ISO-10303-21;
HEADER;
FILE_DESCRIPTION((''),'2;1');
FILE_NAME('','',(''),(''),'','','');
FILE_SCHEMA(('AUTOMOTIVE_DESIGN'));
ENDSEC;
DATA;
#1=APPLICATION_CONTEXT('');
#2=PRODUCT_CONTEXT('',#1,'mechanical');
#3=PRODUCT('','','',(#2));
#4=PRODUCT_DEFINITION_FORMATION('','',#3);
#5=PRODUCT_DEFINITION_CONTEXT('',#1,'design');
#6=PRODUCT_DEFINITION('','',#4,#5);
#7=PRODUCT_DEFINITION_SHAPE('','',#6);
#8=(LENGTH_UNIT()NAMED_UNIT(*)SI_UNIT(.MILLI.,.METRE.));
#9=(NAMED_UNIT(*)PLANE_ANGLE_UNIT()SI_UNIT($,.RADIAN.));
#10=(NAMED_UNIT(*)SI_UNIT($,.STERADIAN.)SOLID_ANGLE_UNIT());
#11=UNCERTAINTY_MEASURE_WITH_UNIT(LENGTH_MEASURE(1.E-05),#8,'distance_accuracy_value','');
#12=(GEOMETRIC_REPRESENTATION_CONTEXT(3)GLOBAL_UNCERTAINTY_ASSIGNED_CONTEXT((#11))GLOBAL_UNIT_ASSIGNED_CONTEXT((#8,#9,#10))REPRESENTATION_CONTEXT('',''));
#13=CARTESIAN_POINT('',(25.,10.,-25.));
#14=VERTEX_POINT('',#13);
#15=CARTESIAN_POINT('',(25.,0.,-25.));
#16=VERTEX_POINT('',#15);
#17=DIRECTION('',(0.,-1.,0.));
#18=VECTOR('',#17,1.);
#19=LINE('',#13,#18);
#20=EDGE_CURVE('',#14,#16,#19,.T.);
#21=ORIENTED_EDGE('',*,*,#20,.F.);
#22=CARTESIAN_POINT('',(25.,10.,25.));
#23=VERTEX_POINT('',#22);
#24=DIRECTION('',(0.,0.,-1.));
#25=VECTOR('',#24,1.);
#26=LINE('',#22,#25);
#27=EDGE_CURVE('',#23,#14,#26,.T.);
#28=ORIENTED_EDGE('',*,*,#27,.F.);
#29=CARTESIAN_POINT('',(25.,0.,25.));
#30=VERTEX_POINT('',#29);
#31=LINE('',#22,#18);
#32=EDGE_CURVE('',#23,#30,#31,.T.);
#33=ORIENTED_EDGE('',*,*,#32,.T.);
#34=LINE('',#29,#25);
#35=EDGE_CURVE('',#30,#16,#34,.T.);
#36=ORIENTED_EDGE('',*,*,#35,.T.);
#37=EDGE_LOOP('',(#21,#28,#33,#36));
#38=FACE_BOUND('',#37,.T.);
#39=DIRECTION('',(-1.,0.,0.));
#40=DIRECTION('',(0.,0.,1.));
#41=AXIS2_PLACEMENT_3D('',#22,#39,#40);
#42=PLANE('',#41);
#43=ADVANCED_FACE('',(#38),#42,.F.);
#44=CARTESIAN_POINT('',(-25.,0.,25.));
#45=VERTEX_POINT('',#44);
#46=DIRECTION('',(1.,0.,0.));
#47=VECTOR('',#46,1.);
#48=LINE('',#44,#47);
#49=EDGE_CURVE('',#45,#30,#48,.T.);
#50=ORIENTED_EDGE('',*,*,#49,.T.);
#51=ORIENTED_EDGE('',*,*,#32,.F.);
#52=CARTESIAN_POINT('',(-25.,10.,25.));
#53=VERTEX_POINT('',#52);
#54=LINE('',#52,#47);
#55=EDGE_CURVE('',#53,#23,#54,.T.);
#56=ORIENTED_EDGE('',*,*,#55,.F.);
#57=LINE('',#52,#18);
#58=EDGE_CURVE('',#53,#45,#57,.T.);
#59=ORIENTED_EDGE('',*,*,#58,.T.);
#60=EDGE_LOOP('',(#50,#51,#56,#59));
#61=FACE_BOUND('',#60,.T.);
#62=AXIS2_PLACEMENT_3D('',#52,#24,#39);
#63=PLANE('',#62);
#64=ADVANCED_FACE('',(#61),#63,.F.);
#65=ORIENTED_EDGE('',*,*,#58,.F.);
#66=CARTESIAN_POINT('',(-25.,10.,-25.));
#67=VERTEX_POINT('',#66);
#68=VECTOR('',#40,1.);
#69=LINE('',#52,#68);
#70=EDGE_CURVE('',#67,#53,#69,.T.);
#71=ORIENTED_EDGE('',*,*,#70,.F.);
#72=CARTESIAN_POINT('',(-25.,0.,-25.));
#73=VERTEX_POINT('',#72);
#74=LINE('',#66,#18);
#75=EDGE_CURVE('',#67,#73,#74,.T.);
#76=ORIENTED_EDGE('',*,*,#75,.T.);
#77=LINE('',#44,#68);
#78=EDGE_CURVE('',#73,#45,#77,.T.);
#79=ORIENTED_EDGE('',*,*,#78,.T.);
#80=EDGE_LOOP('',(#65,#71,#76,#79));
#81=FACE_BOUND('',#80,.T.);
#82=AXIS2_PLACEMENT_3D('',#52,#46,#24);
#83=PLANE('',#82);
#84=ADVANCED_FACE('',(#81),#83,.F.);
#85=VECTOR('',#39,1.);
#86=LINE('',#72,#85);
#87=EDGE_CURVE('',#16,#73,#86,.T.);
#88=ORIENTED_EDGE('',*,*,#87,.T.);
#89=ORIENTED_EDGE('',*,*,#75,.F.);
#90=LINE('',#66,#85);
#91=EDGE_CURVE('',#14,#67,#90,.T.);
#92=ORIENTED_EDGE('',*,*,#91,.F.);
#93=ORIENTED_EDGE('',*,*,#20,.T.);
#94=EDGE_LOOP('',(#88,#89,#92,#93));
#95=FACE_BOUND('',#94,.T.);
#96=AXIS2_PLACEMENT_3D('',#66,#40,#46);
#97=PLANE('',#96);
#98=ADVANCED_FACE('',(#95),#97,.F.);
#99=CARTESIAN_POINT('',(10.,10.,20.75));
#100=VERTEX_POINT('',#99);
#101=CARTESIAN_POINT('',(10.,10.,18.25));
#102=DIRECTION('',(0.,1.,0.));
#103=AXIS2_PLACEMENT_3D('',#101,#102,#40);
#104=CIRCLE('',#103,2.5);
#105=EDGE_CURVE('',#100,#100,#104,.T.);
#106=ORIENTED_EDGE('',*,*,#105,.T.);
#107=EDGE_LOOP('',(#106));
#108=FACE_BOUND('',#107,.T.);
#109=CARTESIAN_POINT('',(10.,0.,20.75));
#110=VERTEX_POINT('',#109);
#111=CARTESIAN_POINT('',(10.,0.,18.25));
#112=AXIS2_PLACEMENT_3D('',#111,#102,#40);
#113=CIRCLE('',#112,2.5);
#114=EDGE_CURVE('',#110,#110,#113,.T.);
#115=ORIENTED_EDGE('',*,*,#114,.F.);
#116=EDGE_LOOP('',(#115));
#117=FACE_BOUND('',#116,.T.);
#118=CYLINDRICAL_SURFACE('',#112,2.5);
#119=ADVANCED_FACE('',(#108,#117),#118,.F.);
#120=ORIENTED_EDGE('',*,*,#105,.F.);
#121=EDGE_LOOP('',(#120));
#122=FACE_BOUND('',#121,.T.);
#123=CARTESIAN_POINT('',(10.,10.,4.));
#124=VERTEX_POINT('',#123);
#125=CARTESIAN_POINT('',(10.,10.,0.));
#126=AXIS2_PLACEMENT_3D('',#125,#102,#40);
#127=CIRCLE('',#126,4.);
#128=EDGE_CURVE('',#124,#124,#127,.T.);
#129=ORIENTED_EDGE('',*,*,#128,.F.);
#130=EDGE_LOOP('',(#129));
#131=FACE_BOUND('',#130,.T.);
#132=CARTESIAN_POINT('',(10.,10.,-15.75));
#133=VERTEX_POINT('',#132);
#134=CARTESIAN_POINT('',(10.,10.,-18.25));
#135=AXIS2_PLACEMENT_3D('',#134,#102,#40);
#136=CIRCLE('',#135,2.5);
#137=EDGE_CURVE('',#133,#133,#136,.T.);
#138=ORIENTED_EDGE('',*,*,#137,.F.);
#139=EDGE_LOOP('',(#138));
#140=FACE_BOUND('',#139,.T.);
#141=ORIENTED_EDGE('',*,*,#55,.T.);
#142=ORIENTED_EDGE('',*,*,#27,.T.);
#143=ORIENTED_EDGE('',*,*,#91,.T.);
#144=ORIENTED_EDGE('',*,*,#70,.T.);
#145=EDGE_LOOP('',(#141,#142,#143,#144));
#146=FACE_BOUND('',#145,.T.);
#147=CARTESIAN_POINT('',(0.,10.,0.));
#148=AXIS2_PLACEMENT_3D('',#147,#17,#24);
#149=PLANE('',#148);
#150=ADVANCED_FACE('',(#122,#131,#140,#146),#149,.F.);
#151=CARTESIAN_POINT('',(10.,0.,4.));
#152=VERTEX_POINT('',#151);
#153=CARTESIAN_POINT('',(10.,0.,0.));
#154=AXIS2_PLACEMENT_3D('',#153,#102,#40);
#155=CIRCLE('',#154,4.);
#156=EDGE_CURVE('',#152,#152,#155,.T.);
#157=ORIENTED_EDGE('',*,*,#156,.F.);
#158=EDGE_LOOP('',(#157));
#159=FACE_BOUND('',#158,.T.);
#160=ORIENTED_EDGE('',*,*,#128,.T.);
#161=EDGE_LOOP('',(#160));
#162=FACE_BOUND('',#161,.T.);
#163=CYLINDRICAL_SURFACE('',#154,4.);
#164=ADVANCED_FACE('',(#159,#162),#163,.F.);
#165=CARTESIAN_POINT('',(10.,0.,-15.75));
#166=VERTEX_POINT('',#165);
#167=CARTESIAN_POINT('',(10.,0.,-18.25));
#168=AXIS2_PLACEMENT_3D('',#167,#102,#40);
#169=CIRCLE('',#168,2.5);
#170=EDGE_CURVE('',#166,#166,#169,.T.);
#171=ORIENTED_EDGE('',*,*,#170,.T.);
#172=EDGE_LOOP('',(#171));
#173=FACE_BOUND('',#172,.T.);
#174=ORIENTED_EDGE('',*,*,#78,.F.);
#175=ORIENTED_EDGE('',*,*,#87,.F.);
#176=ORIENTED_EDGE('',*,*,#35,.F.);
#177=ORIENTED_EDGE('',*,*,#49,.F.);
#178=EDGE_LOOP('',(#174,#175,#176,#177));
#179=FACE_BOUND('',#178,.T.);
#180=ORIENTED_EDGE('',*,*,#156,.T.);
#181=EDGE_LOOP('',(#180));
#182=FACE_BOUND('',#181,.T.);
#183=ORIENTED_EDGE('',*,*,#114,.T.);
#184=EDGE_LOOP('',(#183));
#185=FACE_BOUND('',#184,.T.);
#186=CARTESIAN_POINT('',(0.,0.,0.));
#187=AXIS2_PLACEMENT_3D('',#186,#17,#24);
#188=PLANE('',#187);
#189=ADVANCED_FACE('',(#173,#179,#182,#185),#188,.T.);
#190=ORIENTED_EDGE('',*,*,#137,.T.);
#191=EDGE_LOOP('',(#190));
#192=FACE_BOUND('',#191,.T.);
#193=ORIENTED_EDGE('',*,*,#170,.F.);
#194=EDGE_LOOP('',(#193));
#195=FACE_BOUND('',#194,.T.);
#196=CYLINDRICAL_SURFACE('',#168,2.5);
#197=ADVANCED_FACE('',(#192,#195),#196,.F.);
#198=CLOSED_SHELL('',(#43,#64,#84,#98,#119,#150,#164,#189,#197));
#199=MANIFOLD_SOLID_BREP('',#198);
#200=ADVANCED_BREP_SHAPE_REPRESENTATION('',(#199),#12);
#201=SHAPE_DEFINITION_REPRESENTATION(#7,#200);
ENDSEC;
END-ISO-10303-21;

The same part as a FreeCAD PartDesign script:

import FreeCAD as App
import Part
import Sketcher

V = App.Vector

doc = App.newDocument("Part")
body = doc.addObject("PartDesign::Body", "Body")

sketch1 = body.newObject("Sketcher::SketchObject", "Sketch")
sketch1.AttachmentSupport = (doc.getObject("XZ_Plane"), [""])
sketch1.MapMode = "FlatFace"
sketch1.addGeometry(Part.LineSegment(V(-25, -25, 0), V(-25, 25, 0)), False)
sketch1.addGeometry(Part.LineSegment(V(-25, 25, 0), V(25, 25, 0)), False)
sketch1.addGeometry(Part.LineSegment(V(25, 25, 0), V(25, -25, 0)), False)
sketch1.addGeometry(Part.LineSegment(V(25, -25, 0), V(-25, -25, 0)), False)
sketch1.addConstraint(Sketcher.Constraint("Coincident", 0, 2, 1, 1))
sketch1.addConstraint(Sketcher.Constraint("Coincident", 1, 2, 2, 1))
sketch1.addConstraint(Sketcher.Constraint("Coincident", 2, 2, 3, 1))
sketch1.addConstraint(Sketcher.Constraint("Coincident", 3, 2, 0, 1))
sketch1.addConstraint(Sketcher.Constraint("Vertical", 0))
sketch1.addConstraint(Sketcher.Constraint("Horizontal", 1))
sketch1.addConstraint(Sketcher.Constraint("Vertical", 2))
sketch1.addConstraint(Sketcher.Constraint("Horizontal", 3))
sketch1.addConstraint(Sketcher.Constraint("Symmetric", 0, 2, 2, 2, -1, 1))
sketch1.addConstraint(Sketcher.Constraint("Equal", 3, 0))
sketch1.addConstraint(Sketcher.Constraint("DistanceX", 1, 1, 1, 2, 50.0))
pad1 = body.newObject("PartDesign::Pad", "Pad")
pad1.Profile = sketch1
pad1.Length = 10
pad1.Reversed = True

sketch2 = body.newObject("Sketcher::SketchObject", "Sketch001")
sketch2.AttachmentSupport = (doc.getObject("XZ_Plane"), [""])
sketch2.MapMode = "FlatFace"
sketch2.AttachmentOffset = App.Placement(V(0, 0, -10), App.Rotation())
sketch2.addGeometry(Part.Circle(V(10, -18.2, 0), V(0, 0, 1), 2.5), False)
sketch2.addGeometry(Part.Circle(V(10, 18.2, 0), V(0, 0, 1), 2.5), False)
sketch2.addConstraint(Sketcher.Constraint("Equal", 0, 1))
sketch2.addConstraint(Sketcher.Constraint("Symmetric", 0, 3, 1, 3, -1))
sketch2.addConstraint(Sketcher.Constraint("Diameter", 0, 5.0))
sketch2.addConstraint(Sketcher.Constraint("DistanceX", -1, 1, 0, 3, 10.0))
sketch2.addConstraint(Sketcher.Constraint("DistanceY", 0, 3, 1, 3, 36.5))
pocket1 = body.newObject("PartDesign::Pocket", "Pocket")
pocket1.Profile = sketch2
pocket1.Type = "ThroughAll"
pocket1.Reversed = True

sketch3 = body.newObject("Sketcher::SketchObject", "Sketch002")
sketch3.AttachmentSupport = (doc.getObject("XZ_Plane"), [""])
sketch3.MapMode = "FlatFace"
sketch3.AttachmentOffset = App.Placement(V(0, 0, -10), App.Rotation())
sketch3.addGeometry(Part.Circle(V(10, 0, 0), V(0, 0, 1), 4), False)
sketch3.addConstraint(Sketcher.Constraint("PointOnObject", 0, 3, -1))
sketch3.addConstraint(Sketcher.Constraint("Diameter", 0, 8.0))
sketch3.addConstraint(Sketcher.Constraint("DistanceX", -1, 1, 0, 3, 10.0))
pocket2 = body.newObject("PartDesign::Pocket", "Pocket001")
pocket2.Profile = sketch3
pocket2.Length = 10
pocket2.Reversed = True

doc.recompute()
